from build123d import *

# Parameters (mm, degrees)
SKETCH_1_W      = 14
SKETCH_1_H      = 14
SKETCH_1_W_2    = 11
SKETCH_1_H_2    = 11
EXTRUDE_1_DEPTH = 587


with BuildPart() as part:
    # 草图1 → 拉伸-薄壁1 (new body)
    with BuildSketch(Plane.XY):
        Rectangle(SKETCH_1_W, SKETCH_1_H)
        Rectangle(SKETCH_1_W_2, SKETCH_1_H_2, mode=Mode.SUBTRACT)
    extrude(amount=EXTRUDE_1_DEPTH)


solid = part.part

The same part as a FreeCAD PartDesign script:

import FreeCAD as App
import Part
import Sketcher
from FreeCAD import Vector
Q = App.Units.Quantity


def add_polygon(sketch, points):
    """Adds a closed chain of lines whose ends are joined by coincident constraints."""
    first, n = sketch.GeometryCount, len(points)
    for a, b in zip(points, points[1:] + points[:1]):
        sketch.addGeometry(Part.LineSegment(App.Vector(*a, 0), App.Vector(*b, 0)), False)
    for i in range(n):
        sketch.addConstraint(Sketcher.Constraint("Coincident", first + i, 2, first + (i + 1) % n, 1))

doc = App.newDocument("Part")
body = doc.addObject("PartDesign::Body", "Body")

# Sketch on XY plane
sketch1 = doc.addObject("Sketcher::SketchObject", "Sketch")
body.addObject(sketch1)
sketch1.AttachmentSupport = (doc.XY_Plane, [""])
sketch1.MapMode = "FlatFace"
add_polygon(sketch1, [(-7, 7), (-7, -7), (7, -7), (7, 7)])  # lines 0-3
add_polygon(sketch1, [(5.5, -5.5), (-5.5, -5.5), (-5.5, 5.5), (5.5, 5.5)])  # lines 4-7
sketch1.addConstraint([
    Sketcher.Constraint("Vertical", 0),
    Sketcher.Constraint("Horizontal", 1),
    Sketcher.Constraint("Vertical", 2),
    Sketcher.Constraint("Horizontal", 3),
    Sketcher.Constraint("Horizontal", 4),
    Sketcher.Constraint("Vertical", 5),
    Sketcher.Constraint("Horizontal", 6),
    Sketcher.Constraint("Vertical", 7),
    Sketcher.Constraint("Symmetric", 0, 2, 2, 2, -1, 1),
    Sketcher.Constraint("Symmetric", 4, 2, 6, 2, -1, 1),
    Sketcher.Constraint("Equal", 3, 0),
    Sketcher.Constraint("Equal", 6, 5),
    Sketcher.Constraint("DistanceX", 1, 1, 1, 2, Q("14 mm")),
    Sketcher.Constraint("DistanceX", 4, 2, 4, 1, Q("11 mm")),
])
pad1 = doc.addObject("PartDesign::Pad", "Pad")
body.addObject(pad1)
pad1.Profile = sketch1
pad1.Length = 587

doc.recompute()
